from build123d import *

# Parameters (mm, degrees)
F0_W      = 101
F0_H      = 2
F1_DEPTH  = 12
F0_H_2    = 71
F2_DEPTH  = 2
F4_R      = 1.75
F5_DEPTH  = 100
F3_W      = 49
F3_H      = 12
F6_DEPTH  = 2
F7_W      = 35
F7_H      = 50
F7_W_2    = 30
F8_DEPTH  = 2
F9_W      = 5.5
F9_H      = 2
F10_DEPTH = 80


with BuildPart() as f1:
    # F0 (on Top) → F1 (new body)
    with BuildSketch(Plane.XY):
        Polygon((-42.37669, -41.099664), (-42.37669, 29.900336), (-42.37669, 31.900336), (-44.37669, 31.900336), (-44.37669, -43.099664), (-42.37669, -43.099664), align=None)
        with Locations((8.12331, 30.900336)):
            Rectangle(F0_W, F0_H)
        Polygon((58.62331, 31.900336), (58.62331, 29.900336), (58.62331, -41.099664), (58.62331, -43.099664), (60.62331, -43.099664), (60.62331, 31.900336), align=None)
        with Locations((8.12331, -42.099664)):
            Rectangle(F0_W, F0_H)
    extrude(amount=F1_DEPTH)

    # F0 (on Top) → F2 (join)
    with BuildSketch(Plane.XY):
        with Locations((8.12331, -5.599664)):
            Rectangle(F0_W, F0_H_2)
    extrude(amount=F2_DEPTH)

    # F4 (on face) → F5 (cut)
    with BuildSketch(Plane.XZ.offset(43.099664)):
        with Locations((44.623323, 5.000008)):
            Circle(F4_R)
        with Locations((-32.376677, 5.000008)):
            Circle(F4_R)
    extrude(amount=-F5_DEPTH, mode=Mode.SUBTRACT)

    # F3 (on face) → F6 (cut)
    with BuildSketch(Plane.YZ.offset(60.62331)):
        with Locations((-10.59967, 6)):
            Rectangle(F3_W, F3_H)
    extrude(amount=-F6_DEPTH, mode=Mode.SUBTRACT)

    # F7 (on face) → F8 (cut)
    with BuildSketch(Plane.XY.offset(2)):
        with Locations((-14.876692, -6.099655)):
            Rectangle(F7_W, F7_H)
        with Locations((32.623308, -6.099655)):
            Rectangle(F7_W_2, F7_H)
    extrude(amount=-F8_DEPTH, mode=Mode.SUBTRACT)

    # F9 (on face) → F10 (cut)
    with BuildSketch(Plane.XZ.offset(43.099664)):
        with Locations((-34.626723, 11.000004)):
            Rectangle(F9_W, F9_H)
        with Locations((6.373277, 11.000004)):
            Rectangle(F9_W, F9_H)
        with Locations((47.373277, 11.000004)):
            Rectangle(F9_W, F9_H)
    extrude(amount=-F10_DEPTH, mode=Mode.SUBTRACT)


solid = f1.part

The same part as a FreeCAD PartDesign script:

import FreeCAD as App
import Part
import Sketcher
from FreeCAD import Vector
Q = App.Units.Quantity


def add_polygon(sketch, points):
    """Adds a closed chain of lines whose ends are joined by coincident constraints."""
    first, n = sketch.GeometryCount, len(points)
    for a, b in zip(points, points[1:] + points[:1]):
        sketch.addGeometry(Part.LineSegment(App.Vector(*a, 0), App.Vector(*b, 0)), False)
    for i in range(n):
        sketch.addConstraint(Sketcher.Constraint("Coincident", first + i, 2, first + (i + 1) % n, 1))

doc = App.newDocument("Part")
body = doc.addObject("PartDesign::Body", "Body")

# Sketch on XY plane
sketch1 = doc.addObject("Sketcher::SketchObject", "Sketch")
body.addObject(sketch1)
sketch1.AttachmentSupport = (doc.XY_Plane, [""])
sketch1.MapMode = "FlatFace"
add_polygon(sketch1, [(-44.37669, 31.900336), (-44.37669, -43.099664), (60.62331, -43.099664), (60.62331, 31.900336)])  # lines 0-3
add_polygon(sketch1, [(-42.37669, -41.099664), (-42.37669, 29.900336), (58.62331, 29.900336), (58.62331, -41.099664)])  # lines 4-7
sketch1.addConstraint([
    Sketcher.Constraint("Vertical", 0),
    Sketcher.Constraint("Horizontal", 1),
    Sketcher.Constraint("Vertical", 2),
    Sketcher.Constraint("Horizontal", 3),
    Sketcher.Constraint("Vertical", 4),
    Sketcher.Constraint("Horizontal", 5),
    Sketcher.Constraint("Vertical", 6),
    Sketcher.Constraint("Horizontal", 7),
    Sketcher.Constraint("DistanceX", 1, 1, 1, 2, Q("105 mm")),
    Sketcher.Constraint("DistanceX", 5, 1, 5, 2, Q("101 mm")),
    Sketcher.Constraint("DistanceY", 0, 2, 0, 1, Q("75 mm")),
    Sketcher.Constraint("DistanceY", 4, 1, 4, 2, Q("71 mm")),
    Sketcher.Constraint("DistanceX", 3, 2, 4, 2, Q("2 mm")),
    Sketcher.Constraint("DistanceY", 4, 2, 3, 2, Q("2 mm")),
    Sketcher.Constraint("DistanceX", 0, 2, -1, 1, Q("44.37669 mm")),
    Sketcher.Constraint("DistanceY", 0, 2, -1, 1, Q("43.099664 mm")),
])
pad1 = doc.addObject("PartDesign::Pad", "Pad")
body.addObject(pad1)
pad1.Profile = sketch1
pad1.Length = 12

# Sketch on XY plane
sketch2 = doc.addObject("Sketcher::SketchObject", "Sketch001")
body.addObject(sketch2)
sketch2.AttachmentSupport = (doc.XY_Plane, [""])
sketch2.MapMode = "FlatFace"
add_polygon(sketch2, [(-42.37669, 29.900336), (-42.37669, -41.099664), (58.62331, -41.099664), (58.62331, 29.900336)])  # lines 0-3
sketch2.addConstraint([
    Sketcher.Constraint("Vertical", 0),
    Sketcher.Constraint("Horizontal", 1),
    Sketcher.Constraint("Vertical", 2),
    Sketcher.Constraint("Horizontal", 3),
    Sketcher.Constraint("DistanceX", 1, 1, 1, 2, Q("101 mm")),
    Sketcher.Constraint("DistanceY", 0, 2, 0, 1, Q("71 mm")),
    Sketcher.Constraint("DistanceX", 0, 2, -1, 1, Q("42.37669 mm")),
    Sketcher.Constraint("DistanceY", 0, 2, -1, 1, Q("41.099664 mm")),
])
pad2 = doc.addObject("PartDesign::Pad", "Pad001")
body.addObject(pad2)
pad2.Profile = sketch2
pad2.Length = 2

# Sketch on XZ plane
sketch3 = doc.addObject("Sketcher::SketchObject", "Sketch002")
body.addObject(sketch3)
sketch3.AttachmentSupport = (doc.XZ_Plane, [""])
sketch3.MapMode = "FlatFace"
sketch3.AttachmentOffset = App.Placement(Vector(0, 0, 43.099664), App.Rotation())
sketch3.addGeometry([
    Part.Circle(Vector(44.623323, 5.000008, 0), Vector(0, 0, 1), 1.75),
    Part.Circle(Vector(-32.376677, 5.000008, 0), Vector(0, 0, 1), 1.75),
], False)
sketch3.addConstraint([
    Sketcher.Constraint("Equal", 0, 1),
    Sketcher.Constraint("Horizontal", 0, 3, 1, 3),
    Sketcher.Constraint("Diameter", 0, Q("3.5 mm")),
    Sketcher.Constraint("DistanceX", 1, 3, 0, 3, Q("77 mm")),
    Sketcher.Constraint("DistanceY", -1, 1, 0, 3, Q("5.000008 mm")),
    Sketcher.Constraint("DistanceX", -1, 1, 0, 3, Q("44.623323 mm")),
])
pocket1 = doc.addObject("PartDesign::Pocket", "Pocket")
body.addObject(pocket1)
pocket1.Profile = sketch3
pocket1.Length = 100

# Sketch on YZ plane
sketch4 = doc.addObject("Sketcher::SketchObject", "Sketch003")
body.addObject(sketch4)
sketch4.AttachmentSupport = (doc.YZ_Plane, [""])
sketch4.MapMode = "FlatFace"
sketch4.AttachmentOffset = App.Placement(Vector(0, 0, 60.62331), App.Rotation())
add_polygon(sketch4, [(-35.09967, 12), (-35.09967, 0), (13.90033, 0), (13.90033, 12)])  # lines 0-3
sketch4.addConstraint([
    Sketcher.Constraint("Vertical", 0),
    Sketcher.Constraint("Horizontal", 1),
    Sketcher.Constraint("Vertical", 2),
    Sketcher.Constraint("Horizontal", 3),
    Sketcher.Constraint("PointOnObject", 0, 2, -1),
    Sketcher.Constraint("DistanceX", 1, 1, 1, 2, Q("49 mm")),
    Sketcher.Constraint("DistanceY", 0, 2, 0, 1, Q("12 mm")),
    Sketcher.Constraint("DistanceX", 0, 2, -1, 1, Q("35.09967 mm")),
])
pocket2 = doc.addObject("PartDesign::Pocket", "Pocket001")
body.addObject(pocket2)
pocket2.Profile = sketch4
pocket2.Length = 2

# Sketch on XY plane
sketch5 = doc.addObject("Sketcher::SketchObject", "Sketch004")
body.addObject(sketch5)
sketch5.AttachmentSupport = (doc.XY_Plane, [""])
sketch5.MapMode = "FlatFace"
sketch5.AttachmentOffset = App.Placement(Vector(0, 0, 2), App.Rotation())
add_polygon(sketch5, [(-32.376692, 18.900345), (-32.376692, -31.099655), (2.623308, -31.099655), (2.623308, 18.900345)])  # lines 0-3
add_polygon(sketch5, [(17.623308, 18.900345), (17.623308, -31.099655), (47.623308, -31.099655), (47.623308, 18.900345)])  # lines 4-7
sketch5.addConstraint([
    Sketcher.Constraint("Vertical", 0),
    Sketcher.Constraint("Horizontal", 1),
    Sketcher.Constraint("Vertical", 2),
    Sketcher.Constraint("Horizontal", 3),
    Sketcher.Constraint("Vertical", 4),
    Sketcher.Constraint("Horizontal", 5),
    Sketcher.Constraint("Vertical", 6),
    Sketcher.Constraint("Horizontal", 7),
    Sketcher.Constraint("Horizontal", 1, 2, 4, 2),
    Sketcher.Constraint("Horizontal", 3, 2, 6, 2),
    Sketcher.Constraint("DistanceX", 1, 1, 1, 2, Q("35 mm")),
    Sketcher.Constraint("DistanceX", 5, 1, 5, 2, Q("30 mm")),
    Sketcher.Constraint("DistanceY", 0, 2, 0, 1, Q("50 mm")),
    Sketcher.Constraint("DistanceX", 1, 2, 4, 2, Q("15 mm")),
    Sketcher.Constraint("DistanceX", 0, 2, -1, 1, Q("32.376692 mm")),
    Sketcher.Constraint("DistanceY", 0, 2, -1, 1, Q("31.099655 mm")),
])
pocket3 = doc.addObject("PartDesign::Pocket", "Pocket002")
body.addObject(pocket3)
pocket3.Profile = sketch5
pocket3.Length = 2

# Sketch on XZ plane
sketch6 = doc.addObject("Sketcher::SketchObject", "Sketch005")
body.addObject(sketch6)
sketch6.AttachmentSupport = (doc.XZ_Plane, [""])
sketch6.MapMode = "FlatFace"
sketch6.AttachmentOffset = App.Placement(Vector(0, 0, 43.099664), App.Rotation())
add_polygon(sketch6, [(-37.376723, 12.000004), (-37.376723, 10.000004), (-31.876723, 10.000004), (-31.876723, 12.000004)])  # lines 0-3
add_polygon(sketch6, [(3.623277, 12.000004), (3.623277, 10.000004), (9.123277, 10.000004), (9.123277, 12.000004)])  # lines 4-7
add_polygon(sketch6, [(44.623277, 12.000004), (44.623277, 10.000004), (50.123277, 10.000004), (50.123277, 12.000004)])  # lines 8-11
sketch6.addConstraint([
    Sketcher.Constraint("Vertical", 0),
    Sketcher.Constraint("Horizontal", 1),
    Sketcher.Constraint("Vertical", 2),
    Sketcher.Constraint("Horizontal", 3),
    Sketcher.Constraint("Vertical", 4),
    Sketcher.Constraint("Horizontal", 5),
    Sketcher.Constraint("Vertical", 6),
    Sketcher.Constraint("Horizontal", 7),
    Sketcher.Constraint("Vertical", 8),
    Sketcher.Constraint("Horizontal", 9),
    Sketcher.Constraint("Vertical", 10),
    Sketcher.Constraint("Horizontal", 11),
    Sketcher.Constraint("Horizontal", 1, 2, 4, 2),
    Sketcher.Constraint("Horizontal", 3, 2, 6, 2),
    Sketcher.Constraint("Horizontal", 5, 2, 8, 2),
    Sketcher.Constraint("Horizontal", 7, 2, 10, 2),
    Sketcher.Constraint("Equal", 3, 5),
    Sketcher.Constraint("Equal", 7, 9),
    Sketcher.Constraint("DistanceY", 0, 2, 0, 1, Q("2 mm")),
    Sketcher.Constraint("DistanceX", 1, 1, 1, 2, Q("5.5 mm")),
    Sketcher.Constraint("DistanceX", 0, 2, 4, 2, Q("41 mm")),
    Sketcher.Constraint("DistanceX", 4, 2, 8, 2, Q("41 mm")),
    Sketcher.Constraint("DistanceX", 0, 2, -1, 1, Q("37.376723 mm")),
    Sketcher.Constraint("DistanceY", -1, 1, 0, 2, Q("10.000004 mm")),
])
pocket4 = doc.addObject("PartDesign::Pocket", "Pocket003")
body.addObject(pocket4)
pocket4.Profile = sketch6
pocket4.Length = 80

doc.recompute()
